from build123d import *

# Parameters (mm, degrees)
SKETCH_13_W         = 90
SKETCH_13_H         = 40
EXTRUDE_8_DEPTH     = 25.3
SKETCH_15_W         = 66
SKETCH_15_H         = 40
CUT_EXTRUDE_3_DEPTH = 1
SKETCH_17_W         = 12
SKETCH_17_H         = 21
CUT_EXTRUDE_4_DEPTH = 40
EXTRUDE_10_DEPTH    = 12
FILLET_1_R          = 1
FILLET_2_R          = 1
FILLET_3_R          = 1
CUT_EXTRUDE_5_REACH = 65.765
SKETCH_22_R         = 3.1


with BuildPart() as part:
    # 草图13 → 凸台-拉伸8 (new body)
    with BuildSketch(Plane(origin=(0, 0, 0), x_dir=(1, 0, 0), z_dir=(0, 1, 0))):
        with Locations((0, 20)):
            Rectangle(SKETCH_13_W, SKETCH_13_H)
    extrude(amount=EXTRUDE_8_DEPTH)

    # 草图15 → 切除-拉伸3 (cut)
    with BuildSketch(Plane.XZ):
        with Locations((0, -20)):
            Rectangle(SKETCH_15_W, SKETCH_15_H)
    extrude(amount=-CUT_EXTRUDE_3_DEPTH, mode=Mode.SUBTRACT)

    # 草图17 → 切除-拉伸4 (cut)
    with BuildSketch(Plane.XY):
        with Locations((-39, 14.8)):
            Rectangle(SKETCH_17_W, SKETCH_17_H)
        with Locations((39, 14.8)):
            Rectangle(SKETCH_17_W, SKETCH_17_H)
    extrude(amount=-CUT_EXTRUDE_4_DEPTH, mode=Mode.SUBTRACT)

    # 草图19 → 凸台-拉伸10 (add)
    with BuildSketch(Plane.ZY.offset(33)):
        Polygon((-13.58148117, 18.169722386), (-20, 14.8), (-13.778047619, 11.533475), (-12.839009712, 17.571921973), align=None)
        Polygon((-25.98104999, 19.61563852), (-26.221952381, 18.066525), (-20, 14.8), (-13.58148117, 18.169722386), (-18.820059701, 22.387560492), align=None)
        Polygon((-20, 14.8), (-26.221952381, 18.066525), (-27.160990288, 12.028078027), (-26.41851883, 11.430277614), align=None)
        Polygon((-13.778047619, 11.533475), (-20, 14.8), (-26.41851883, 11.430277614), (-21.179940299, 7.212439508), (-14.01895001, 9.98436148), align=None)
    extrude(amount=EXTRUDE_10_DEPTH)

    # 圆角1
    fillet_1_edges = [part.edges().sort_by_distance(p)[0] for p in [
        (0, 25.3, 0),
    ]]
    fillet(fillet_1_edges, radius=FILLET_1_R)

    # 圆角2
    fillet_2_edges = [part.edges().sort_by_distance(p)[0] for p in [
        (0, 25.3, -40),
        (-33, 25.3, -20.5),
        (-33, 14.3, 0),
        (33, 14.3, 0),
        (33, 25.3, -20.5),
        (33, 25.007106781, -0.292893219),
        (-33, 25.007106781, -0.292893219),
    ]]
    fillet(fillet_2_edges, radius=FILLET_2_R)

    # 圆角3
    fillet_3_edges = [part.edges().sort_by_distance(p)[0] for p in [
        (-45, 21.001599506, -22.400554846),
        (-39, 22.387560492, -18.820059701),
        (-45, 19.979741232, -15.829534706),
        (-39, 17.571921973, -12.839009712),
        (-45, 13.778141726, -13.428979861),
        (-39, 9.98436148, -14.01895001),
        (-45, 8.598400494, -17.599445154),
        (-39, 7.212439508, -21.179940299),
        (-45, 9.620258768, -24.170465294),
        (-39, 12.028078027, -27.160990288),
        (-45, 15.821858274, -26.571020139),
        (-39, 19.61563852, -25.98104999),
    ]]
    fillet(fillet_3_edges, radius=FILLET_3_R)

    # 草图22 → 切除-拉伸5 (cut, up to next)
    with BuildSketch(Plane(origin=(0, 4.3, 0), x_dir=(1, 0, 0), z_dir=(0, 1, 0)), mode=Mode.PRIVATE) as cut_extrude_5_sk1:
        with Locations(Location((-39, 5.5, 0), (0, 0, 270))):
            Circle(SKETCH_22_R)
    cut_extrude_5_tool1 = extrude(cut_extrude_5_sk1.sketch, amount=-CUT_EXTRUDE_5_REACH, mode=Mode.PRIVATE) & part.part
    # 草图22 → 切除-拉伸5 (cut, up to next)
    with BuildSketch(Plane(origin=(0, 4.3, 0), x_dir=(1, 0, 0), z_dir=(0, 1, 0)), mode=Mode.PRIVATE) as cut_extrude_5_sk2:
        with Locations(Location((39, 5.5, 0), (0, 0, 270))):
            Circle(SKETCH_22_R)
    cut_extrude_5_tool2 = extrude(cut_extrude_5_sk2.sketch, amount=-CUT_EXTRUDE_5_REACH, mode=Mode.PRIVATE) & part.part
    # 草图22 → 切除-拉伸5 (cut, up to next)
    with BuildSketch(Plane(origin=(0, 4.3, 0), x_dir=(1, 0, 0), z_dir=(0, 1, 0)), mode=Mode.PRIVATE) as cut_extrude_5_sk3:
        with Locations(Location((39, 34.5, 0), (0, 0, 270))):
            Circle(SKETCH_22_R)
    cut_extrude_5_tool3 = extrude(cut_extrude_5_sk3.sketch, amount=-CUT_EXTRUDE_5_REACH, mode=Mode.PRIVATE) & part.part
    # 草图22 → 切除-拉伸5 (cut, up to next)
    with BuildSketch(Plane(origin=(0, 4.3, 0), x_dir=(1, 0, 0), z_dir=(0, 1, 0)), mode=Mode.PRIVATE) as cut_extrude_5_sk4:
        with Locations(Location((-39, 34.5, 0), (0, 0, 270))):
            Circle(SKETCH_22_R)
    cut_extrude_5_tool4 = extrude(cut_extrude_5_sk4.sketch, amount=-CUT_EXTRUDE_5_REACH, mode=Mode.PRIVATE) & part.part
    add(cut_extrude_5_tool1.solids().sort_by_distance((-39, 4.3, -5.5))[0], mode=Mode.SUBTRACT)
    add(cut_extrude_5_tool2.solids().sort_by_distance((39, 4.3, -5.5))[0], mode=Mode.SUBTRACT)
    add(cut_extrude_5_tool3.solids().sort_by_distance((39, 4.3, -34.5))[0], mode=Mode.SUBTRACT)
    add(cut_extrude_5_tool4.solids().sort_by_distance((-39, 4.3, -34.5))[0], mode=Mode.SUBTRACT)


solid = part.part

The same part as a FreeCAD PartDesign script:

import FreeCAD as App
import Part
import Sketcher

V = App.Vector


def edges_at(feature, points):
    """Names of the edges that pass closest to the given points."""
    edges = feature.Shape.Edges
    near = lambda p: min(range(len(edges)), key=lambda i: edges[i].distToShape(Part.Vertex(*p))[0])
    return sorted({f"Edge{near(p) + 1}" for p in points})

doc = App.newDocument("Part")
body = doc.addObject("PartDesign::Body", "Body")

sketch1 = body.newObject("Sketcher::SketchObject", "Sketch")
sketch1.AttachmentSupport = (doc.getObject("XZ_Plane"), [""])
sketch1.MapMode = "FlatFace"
sketch1.addGeometry(Part.LineSegment(V(-45, -40, 0), V(-45, 0, 0)), False)
sketch1.addGeometry(Part.LineSegment(V(-45, 0, 0), V(45, 0, 0)), False)
sketch1.addGeometry(Part.LineSegment(V(45, 0, 0), V(45, -40, 0)), False)
sketch1.addGeometry(Part.LineSegment(V(45, -40, 0), V(-45, -40, 0)), False)
sketch1.addConstraint(Sketcher.Constraint("Coincident", 0, 2, 1, 1))
sketch1.addConstraint(Sketcher.Constraint("Coincident", 1, 2, 2, 1))
sketch1.addConstraint(Sketcher.Constraint("Coincident", 2, 2, 3, 1))
sketch1.addConstraint(Sketcher.Constraint("Coincident", 3, 2, 0, 1))
sketch1.addConstraint(Sketcher.Constraint("Vertical", 0))
sketch1.addConstraint(Sketcher.Constraint("Horizontal", 1))
sketch1.addConstraint(Sketcher.Constraint("Vertical", 2))
sketch1.addConstraint(Sketcher.Constraint("Horizontal", 3))
sketch1.addConstraint(Sketcher.Constraint("Symmetric", 0, 2, 1, 2, -1, 1))
sketch1.addConstraint(Sketcher.Constraint("DistanceX", 1, 1, 1, 2, 90.0))
sketch1.addConstraint(Sketcher.Constraint("DistanceY", 0, 1, 0, 2, 40.0))
pad1 = body.newObject("PartDesign::Pad", "Pad")
pad1.Profile = sketch1
pad1.Length = 25.3
pad1.Reversed = True

sketch2 = body.newObject("Sketcher::SketchObject", "Sketch001")
sketch2.AttachmentSupport = (doc.getObject("XZ_Plane"), [""])
sketch2.MapMode = "FlatFace"
sketch2.addGeometry(Part.LineSegment(V(-33, 0, 0), V(-33, -40, 0)), False)
sketch2.addGeometry(Part.LineSegment(V(-33, -40, 0), V(33, -40, 0)), False)
sketch2.addGeometry(Part.LineSegment(V(33, -40, 0), V(33, 0, 0)), False)
sketch2.addGeometry(Part.LineSegment(V(33, 0, 0), V(-33, 0, 0)), False)
sketch2.addConstraint(Sketcher.Constraint("Coincident", 0, 2, 1, 1))
sketch2.addConstraint(Sketcher.Constraint("Coincident", 1, 2, 2, 1))
sketch2.addConstraint(Sketcher.Constraint("Coincident", 2, 2, 3, 1))
sketch2.addConstraint(Sketcher.Constraint("Coincident", 3, 2, 0, 1))
sketch2.addConstraint(Sketcher.Constraint("Vertical", 0))
sketch2.addConstraint(Sketcher.Constraint("Horizontal", 1))
sketch2.addConstraint(Sketcher.Constraint("Vertical", 2))
sketch2.addConstraint(Sketcher.Constraint("Horizontal", 3))
sketch2.addConstraint(Sketcher.Constraint("Symmetric", 2, 2, 3, 2, -1, 1))
sketch2.addConstraint(Sketcher.Constraint("DistanceX", 1, 1, 1, 2, 66.0))
sketch2.addConstraint(Sketcher.Constraint("DistanceY", 0, 2, 0, 1, 40.0))
pocket1 = body.newObject("PartDesign::Pocket", "Pocket")
pocket1.Profile = sketch2
pocket1.Length = 1

sketch3 = body.newObject("Sketcher::SketchObject", "Sketch002")
sketch3.AttachmentSupport = (doc.getObject("XY_Plane"), [""])
sketch3.MapMode = "FlatFace"
sketch3.addGeometry(Part.LineSegment(V(-45, 25, 0), V(-45, 4, 0)), False)
sketch3.addGeometry(Part.LineSegment(V(-45, 4, 0), V(-33, 4, 0)), False)
sketch3.addGeometry(Part.LineSegment(V(-33, 4, 0), V(-33, 25, 0)), False)
sketch3.addGeometry(Part.LineSegment(V(-33, 25, 0), V(-45, 25, 0)), False)
sketch3.addGeometry(Part.LineSegment(V(33, 25, 0), V(33, 4, 0)), False)
sketch3.addGeometry(Part.LineSegment(V(33, 4, 0), V(45, 4, 0)), False)
sketch3.addGeometry(Part.LineSegment(V(45, 4, 0), V(45, 25, 0)), False)
sketch3.addGeometry(Part.LineSegment(V(45, 25, 0), V(33, 25, 0)), False)
sketch3.addConstraint(Sketcher.Constraint("Coincident", 0, 2, 1, 1))
sketch3.addConstraint(Sketcher.Constraint("Coincident", 1, 2, 2, 1))
sketch3.addConstraint(Sketcher.Constraint("Coincident", 2, 2, 3, 1))
sketch3.addConstraint(Sketcher.Constraint("Coincident", 3, 2, 0, 1))
sketch3.addConstraint(Sketcher.Constraint("Coincident", 4, 2, 5, 1))
sketch3.addConstraint(Sketcher.Constraint("Coincident", 5, 2, 6, 1))
sketch3.addConstraint(Sketcher.Constraint("Coincident", 6, 2, 7, 1))
sketch3.addConstraint(Sketcher.Constraint("Coincident", 7, 2, 4, 1))
sketch3.addConstraint(Sketcher.Constraint("Vertical", 0))
sketch3.addConstraint(Sketcher.Constraint("Horizontal", 1))
sketch3.addConstraint(Sketcher.Constraint("Vertical", 2))
sketch3.addConstraint(Sketcher.Constraint("Horizontal", 3))
sketch3.addConstraint(Sketcher.Constraint("Vertical", 4))
sketch3.addConstraint(Sketcher.Constraint("Horizontal", 5))
sketch3.addConstraint(Sketcher.Constraint("Vertical", 6))
sketch3.addConstraint(Sketcher.Constraint("Horizontal", 7))
sketch3.addConstraint(Sketcher.Constraint("Symmetric", 1, 2, 4, 2, -2))
sketch3.addConstraint(Sketcher.Constraint("Symmetric", 3, 2, 6, 2, -2))
sketch3.addConstraint(Sketcher.Constraint("DistanceX", 1, 1, 1, 2, 12.0))
sketch3.addConstraint(Sketcher.Constraint("DistanceY", 0, 2, 0, 1, 21.0))
sketch3.addConstraint(Sketcher.Constraint("DistanceX", 0, 2, -1, 1, 45.0))
sketch3.addConstraint(Sketcher.Constraint("DistanceY", -1, 1, 0, 2, 4.3))
pocket2 = body.newObject("PartDesign::Pocket", "Pocket001")
pocket2.Profile = sketch3
pocket2.Length = 40

sketch4 = body.newObject("Sketcher::SketchObject", "Sketch003")
sketch4.AttachmentSupport = (doc.getObject("YZ_Plane"), [""])
sketch4.MapMode = "FlatFace"
sketch4.AttachmentOffset = App.Placement(V(0, 0, -33), App.Rotation())
sketch4.addGeometry(Part.LineSegment(V(11.5, -13.8, 0), V(17.6, -12.8, 0)), False)
sketch4.addGeometry(Part.LineSegment(V(17.6, -12.8, 0), V(18.2, -13.6, 0)), False)
sketch4.addGeometry(Part.LineSegment(V(18.2, -13.6, 0), V(22.4, -18.8, 0)), False)
sketch4.addGeometry(Part.LineSegment(V(22.4, -18.8, 0), V(19.6, -26, 0)), False)
sketch4.addGeometry(Part.LineSegment(V(19.6, -26, 0), V(18.1, -26.2, 0)), False)
sketch4.addGeometry(Part.LineSegment(V(18.1, -26.2, 0), V(12, -27.2, 0)), False)
sketch4.addGeometry(Part.LineSegment(V(12, -27.2, 0), V(11.4, -26.4, 0)), False)
sketch4.addGeometry(Part.LineSegment(V(11.4, -26.4, 0), V(7.2, -21.2, 0)), False)
sketch4.addGeometry(Part.LineSegment(V(7.2, -21.2, 0), V(10, -14, 0)), False)
sketch4.addGeometry(Part.LineSegment(V(10, -14, 0), V(11.5, -13.8, 0)), False)
sketch4.addConstraint(Sketcher.Constraint("Coincident", 0, 2, 1, 1))
sketch4.addConstraint(Sketcher.Constraint("Coincident", 1, 2, 2, 1))
sketch4.addConstraint(Sketcher.Constraint("Coincident", 2, 2, 3, 1))
sketch4.addConstraint(Sketcher.Constraint("Coincident", 3, 2, 4, 1))
sketch4.addConstraint(Sketcher.Constraint("Coincident", 4, 2, 5, 1))
sketch4.addConstraint(Sketcher.Constraint("Coincident", 5, 2, 6, 1))
sketch4.addConstraint(Sketcher.Constraint("Coincident", 6, 2, 7, 1))
sketch4.addConstraint(Sketcher.Constraint("Coincident", 7, 2, 8, 1))
sketch4.addConstraint(Sketcher.Constraint("Coincident", 8, 2, 9, 1))
sketch4.addConstraint(Sketcher.Constraint("Coincident", 9, 2, 0, 1))
sketch4.addConstraint(Sketcher.Constraint("Parallel", 1, 2))
sketch4.addConstraint(Sketcher.Constraint("Parallel", 0, 4))
sketch4.addConstraint(Sketcher.Constraint("Parallel", 4, 5))
sketch4.addConstraint(Sketcher.Constraint("Parallel", 2, 6))
sketch4.addConstraint(Sketcher.Constraint("Parallel", 6, 7))
sketch4.addConstraint(Sketcher.Constraint("Parallel", 3, 8))
sketch4.addConstraint(Sketcher.Constraint("Parallel", 5, 9))
sketch4.addConstraint(Sketcher.Constraint("Equal", 0, 5))
sketch4.addConstraint(Sketcher.Constraint("Equal", 1, 6))
sketch4.addConstraint(Sketcher.Constraint("Equal", 2, 7))
sketch4.addConstraint(Sketcher.Constraint("DistanceX", 0, 2, 1, 2, 0.5978))
sketch4.addConstraint(Sketcher.Constraint("DistanceX", 7, 2, 3, 2, 12.403199))
sketch4.addConstraint(Sketcher.Constraint("Distance", 1, 0.95322))
sketch4.addConstraint(Sketcher.Constraint("Distance", 2, 6.725538))
sketch4.addConstraint(Sketcher.Constraint("Distance", 3, 7.678759))
sketch4.addConstraint(Sketcher.Constraint("DistanceX", -1, 1, 0, 2, 17.571922))
sketch4.addConstraint(Sketcher.Constraint("DistanceY", 0, 2, -1, 1, 12.83901))
sketch4.addConstraint(Sketcher.Constraint("DistanceX", -1, 1, 3, 2, 19.615639))
sketch4.addConstraint(Sketcher.Constraint("DistanceY", 5, 2, -1, 1, 27.16099))
sketch4.addConstraint(Sketcher.Constraint("DistanceY", 4, 2, 1, 2, 12.640471))
pad2 = body.newObject("PartDesign::Pad", "Pad001")
pad2.Profile = sketch4
pad2.Length = 12
pad2.Reversed = True
doc.recompute()

fillet = body.newObject("PartDesign::Fillet", "Fillet")
fillet.Base = (pad2, edges_at(pad2, [(0, 25.3, 0)]))
fillet.Radius = 1
doc.recompute()

fillet2 = body.newObject("PartDesign::Fillet", "Fillet001")
fillet2.Base = (fillet, edges_at(fillet, [
    (0, 25.3, -40),
    (-33, 25.3, -20.5),
    (-33, 14.3, 0),
    (33, 14.3, 0),
    (33, 25.3, -20.5),
    (33, 25.007, -0.293),
    (-33, 25.007, -0.293),
]))
fillet2.Radius = 1
doc.recompute()

fillet3 = body.newObject("PartDesign::Fillet", "Fillet002")
fillet3.Base = (fillet2, edges_at(fillet2, [
    (-45, 21.002, -22.401),
    (-39, 22.388, -18.82),
    (-45, 20.279, -16.201),
    (-39, 17.572, -12.839),
    (-45, 14.553, -13.309),
    (-39, 9.984, -14.019),
    (-45, 8.598, -17.599),
    (-39, 7.212, -21.18),
    (-45, 9.321, -23.799),
    (-39, 12.028, -27.161),
    (-45, 15.047, -26.691),
    (-39, 19.616, -25.981),
]))
fillet3.Radius = 1

sketch5 = body.newObject("Sketcher::SketchObject", "Sketch004")
sketch5.AttachmentSupport = (doc.getObject("XZ_Plane"), [""])
sketch5.MapMode = "FlatFace"
sketch5.AttachmentOffset = App.Placement(V(0, 0, -4.3), App.Rotation())
sketch5.addGeometry(Part.Circle(V(-39, -5.5, 0), V(0, 0, 1), 3.1), False)
sketch5.addConstraint(Sketcher.Constraint("Diameter", 0, 6.2))
sketch5.addConstraint(Sketcher.Constraint("DistanceX", 0, 3, -1, 1, 39.0))
sketch5.addConstraint(Sketcher.Constraint("DistanceY", 0, 3, -1, 1, 5.5))
pocket3 = body.newObject("PartDesign::Pocket", "Pocket002")
pocket3.Profile = sketch5
pocket3.Type = "UpToFirst"
pocket3.Reversed = True

sketch6 = body.newObject("Sketcher::SketchObject", "Sketch005")
sketch6.AttachmentSupport = (doc.getObject("XZ_Plane"), [""])
sketch6.MapMode = "FlatFace"
sketch6.AttachmentOffset = App.Placement(V(0, 0, -4.3), App.Rotation())
sketch6.addGeometry(Part.Circle(V(39, -5.5, 0), V(0, 0, 1), 3.1), False)
sketch6.addConstraint(Sketcher.Constraint("Diameter", 0, 6.2))
sketch6.addConstraint(Sketcher.Constraint("DistanceX", -1, 1, 0, 3, 39.0))
sketch6.addConstraint(Sketcher.Constraint("DistanceY", 0, 3, -1, 1, 5.5))
pocket4 = body.newObject("PartDesign::Pocket", "Pocket003")
pocket4.Profile = sketch6
pocket4.Type = "UpToFirst"
pocket4.Reversed = True

sketch7 = body.newObject("Sketcher::SketchObject", "Sketch006")
sketch7.AttachmentSupport = (doc.getObject("XZ_Plane"), [""])
sketch7.MapMode = "FlatFace"
sketch7.AttachmentOffset = App.Placement(V(0, 0, -4.3), App.Rotation())
sketch7.addGeometry(Part.Circle(V(39, -34.5, 0), V(0, 0, 1), 3.1), False)
sketch7.addConstraint(Sketcher.Constraint("Diameter", 0, 6.2))
sketch7.addConstraint(Sketcher.Constraint("DistanceX", -1, 1, 0, 3, 39.0))
sketch7.addConstraint(Sketcher.Constraint("DistanceY", 0, 3, -1, 1, 34.5))
pocket5 = body.newObject("PartDesign::Pocket", "Pocket004")
pocket5.Profile = sketch7
pocket5.Type = "UpToFirst"
pocket5.Reversed = True

sketch8 = body.newObject("Sketcher::SketchObject", "Sketch007")
sketch8.AttachmentSupport = (doc.getObject("XZ_Plane"), [""])
sketch8.MapMode = "FlatFace"
sketch8.AttachmentOffset = App.Placement(V(0, 0, -4.3), App.Rotation())
sketch8.addGeometry(Part.Circle(V(-39, -34.5, 0), V(0, 0, 1), 3.1), False)
sketch8.addConstraint(Sketcher.Constraint("Diameter", 0, 6.2))
sketch8.addConstraint(Sketcher.Constraint("DistanceX", 0, 3, -1, 1, 39.0))
sketch8.addConstraint(Sketcher.Constraint("DistanceY", 0, 3, -1, 1, 34.5))
pocket6 = body.newObject("PartDesign::Pocket", "Pocket005")
pocket6.Profile = sketch8
pocket6.Type = "UpToFirst"
pocket6.Reversed = True

doc.recompute()
